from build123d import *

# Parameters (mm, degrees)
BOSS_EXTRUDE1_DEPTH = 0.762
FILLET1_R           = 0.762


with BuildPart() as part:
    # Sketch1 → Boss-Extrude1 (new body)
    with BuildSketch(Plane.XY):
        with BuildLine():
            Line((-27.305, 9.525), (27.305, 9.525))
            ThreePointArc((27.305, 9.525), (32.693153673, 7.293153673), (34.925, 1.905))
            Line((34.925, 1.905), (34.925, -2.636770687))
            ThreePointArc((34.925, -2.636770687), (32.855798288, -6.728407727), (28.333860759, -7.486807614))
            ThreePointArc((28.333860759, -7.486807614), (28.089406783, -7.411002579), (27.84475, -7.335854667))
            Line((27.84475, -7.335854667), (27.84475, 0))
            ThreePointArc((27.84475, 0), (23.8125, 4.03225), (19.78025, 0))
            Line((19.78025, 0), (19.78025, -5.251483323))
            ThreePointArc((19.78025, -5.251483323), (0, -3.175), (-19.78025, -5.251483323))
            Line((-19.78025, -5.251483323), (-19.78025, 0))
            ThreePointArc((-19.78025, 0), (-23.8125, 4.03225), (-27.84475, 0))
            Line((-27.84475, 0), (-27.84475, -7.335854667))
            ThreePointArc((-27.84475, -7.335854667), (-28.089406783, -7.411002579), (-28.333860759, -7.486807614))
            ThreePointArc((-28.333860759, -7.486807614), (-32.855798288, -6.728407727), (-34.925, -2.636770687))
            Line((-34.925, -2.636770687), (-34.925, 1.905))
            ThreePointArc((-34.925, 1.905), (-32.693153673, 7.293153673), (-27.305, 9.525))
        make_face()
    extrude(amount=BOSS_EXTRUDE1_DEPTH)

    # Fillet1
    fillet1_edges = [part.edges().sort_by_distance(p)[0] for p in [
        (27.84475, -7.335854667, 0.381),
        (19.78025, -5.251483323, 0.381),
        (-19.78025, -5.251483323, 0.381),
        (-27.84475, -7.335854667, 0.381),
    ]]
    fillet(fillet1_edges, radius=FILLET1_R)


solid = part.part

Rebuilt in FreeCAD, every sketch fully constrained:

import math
import FreeCAD as App
import Part
import Sketcher

V = App.Vector
Q = App.Units.Quantity


def edges_at(feature, points):
    """Names of the edges that pass closest to the given points."""
    edges = feature.Shape.Edges
    near = lambda p: min(range(len(edges)), key=lambda i: edges[i].distToShape(Part.Vertex(*p))[0])
    return sorted({f"Edge{near(p) + 1}" for p in points})

doc = App.newDocument("Part")
params = doc.addObject("Spreadsheet::Sheet", "Params")
for row, (alias, value) in enumerate([
    ("sketch1_radius", "0.3 in"),
    ("sketch1_radius2", "0.2 in"),
    ("sketch1_radius3", "3.75 in"),
    ("sketch1_width", "2.15 in"),
    ("pad1_length", "0.03 in"),
    ("fillet_radius", "0.03 in"),
], start=1):
    params.set(f"A{row}", alias)
    params.set(f"B{row}", "=" + value)
    params.setAlias(f"B{row}", alias)

body = doc.addObject("PartDesign::Body", "Body")

# Sketch on XY plane
sketch1 = body.newObject("Sketcher::SketchObject", "Sketch")
sketch1.AttachmentSupport = (doc.getObject("XY_Plane"), [""])
sketch1.MapMode = "FlatFace"
sketch1.addGeometry(Part.LineSegment(V(27.305, 9.525, 0), V(-27.305, 9.525, 0)), False)
sketch1.addGeometry(Part.ArcOfCircle(Part.Circle(V(-27.305, 1.905, 0), V(0, 0, 1), 7.62), math.radians(90), math.radians(180)), False)
sketch1.addGeometry(Part.LineSegment(V(-34.925, 1.905, 0), V(-34.925, -2.636771, 0)), False)
sketch1.addGeometry(Part.ArcOfCircle(Part.Circle(V(-29.845, -2.636771, 0), V(0, 0, 1), 5.08), math.radians(180), math.radians(287.30561)), False)
sketch1.addGeometry(Part.ArcOfCircle(Part.Circle(V(0.000013, -98.425042, 0), V(0, 0, 1), 95.250044), math.radians(106.997701), math.radians(107.30561)), False)
sketch1.addGeometry(Part.LineSegment(V(-27.84475, -7.335855, 0), V(-27.84475, 0, 0)), False)
sketch1.addGeometry(Part.ArcOfCircle(Part.Circle(V(-23.8125, 0, 0), V(0, 0, 1), 4.03225), math.radians(0), math.radians(180)), False)
sketch1.addGeometry(Part.LineSegment(V(-19.78025, 0, 0), V(-19.78025, -5.251483, 0)), False)
sketch1.addGeometry(Part.ArcOfCircle(Part.Circle(V(0, -98.425, 0), V(0, 0, 1), 95.25), math.radians(78.014352), math.radians(101.985648)), False)
sketch1.addGeometry(Part.LineSegment(V(19.78025, -5.251483, 0), V(19.78025, 0, 0)), False)
sketch1.addGeometry(Part.ArcOfCircle(Part.Circle(V(23.8125, 0, 0), V(0, 0, 1), 4.03225), math.radians(0), math.radians(180)), False)
sketch1.addGeometry(Part.LineSegment(V(27.84475, 0, 0), V(27.84475, -7.335855, 0)), False)
sketch1.addGeometry(Part.ArcOfCircle(Part.Circle(V(-0.000013, -98.425042, 0), V(0, 0, 1), 95.250044), math.radians(72.69439), math.radians(73.002299)), False)
sketch1.addGeometry(Part.ArcOfCircle(Part.Circle(V(29.845, -2.636771, 0), V(0, 0, 1), 5.08), math.radians(-107.30561), math.radians(0)), False)
sketch1.addGeometry(Part.LineSegment(V(34.925, -2.636771, 0), V(34.925, 1.905, 0)), False)
sketch1.addGeometry(Part.ArcOfCircle(Part.Circle(V(27.305, 1.905, 0), V(0, 0, 1), 7.62), math.radians(0), math.radians(90)), False)
sketch1.addConstraint(Sketcher.Constraint("Tangent", 0, 2, 1, 1))
sketch1.addConstraint(Sketcher.Constraint("Tangent", 1, 2, 2, 1))
sketch1.addConstraint(Sketcher.Constraint("Tangent", 2, 2, 3, 1))
sketch1.addConstraint(Sketcher.Constraint("Tangent", 3, 2, 4, 2))
sketch1.addConstraint(Sketcher.Constraint("Coincident", 4, 1, 5, 1))
sketch1.addConstraint(Sketcher.Constraint("Tangent", 5, 2, 6, 2))
sketch1.addConstraint(Sketcher.Constraint("Tangent", 6, 1, 7, 1))
sketch1.addConstraint(Sketcher.Constraint("Coincident", 7, 2, 8, 2))
sketch1.addConstraint(Sketcher.Constraint("Coincident", 8, 1, 9, 1))
sketch1.addConstraint(Sketcher.Constraint("Tangent", 9, 2, 10, 2))
sketch1.addConstraint(Sketcher.Constraint("Tangent", 10, 1, 11, 1))
sketch1.addConstraint(Sketcher.Constraint("Coincident", 11, 2, 12, 2))
sketch1.addConstraint(Sketcher.Constraint("Tangent", 12, 1, 13, 1))
sketch1.addConstraint(Sketcher.Constraint("Tangent", 13, 2, 14, 1))
sketch1.addConstraint(Sketcher.Constraint("Tangent", 14, 2, 15, 1))
sketch1.addConstraint(Sketcher.Constraint("Tangent", 15, 2, 0, 1))
sketch1.addConstraint(Sketcher.Constraint("Horizontal", 0))
sketch1.addConstraint(Sketcher.Constraint("Vertical", 2))
sketch1.addConstraint(Sketcher.Constraint("Vertical", 5))
sketch1.addConstraint(Sketcher.Constraint("Vertical", 7))
sketch1.addConstraint(Sketcher.Constraint("Vertical", 9))
sketch1.addConstraint(Sketcher.Constraint("Vertical", 11))
sketch1.addConstraint(Sketcher.Constraint("Vertical", 14))
sketch1.addConstraint(Sketcher.Constraint("Equal", 6, 10))
sketch1.addConstraint(Sketcher.Constraint("Equal", 4, 12))
sketch1.addConstraint(Sketcher.Constraint("Equal", 3, 13))
sketch1.addConstraint(Sketcher.Constraint("Equal", 1, 15))
sketch1.addConstraint(Sketcher.Constraint("Symmetric", 6, 3, 10, 3, -1, 1))
sketch1.addConstraint(Sketcher.Constraint("Symmetric", 4, 3, 12, 3, -2))
sketch1.addConstraint(Sketcher.Constraint("PointOnObject", 6, 3, -1))
sketch1.addConstraint(Sketcher.Constraint("PointOnObject", 8, 3, -2))
sketch1.addConstraint(Sketcher.Constraint("Horizontal", 3, 3, 13, 3))
sketch1.addConstraint(Sketcher.Constraint("Radius", 1, Q("0.3 in")))
sketch1.addConstraint(Sketcher.Constraint("Radius", 3, Q("0.2 in")))
sketch1.addConstraint(Sketcher.Constraint("Radius", 8, Q("3.75 in")))
sketch1.addConstraint(Sketcher.Constraint("DistanceX", 0, 2, 0, 1, Q("2.15 in")))
sketch1.addConstraint(Sketcher.Constraint("DistanceY", 8, 3, 1, 3, Q("3.95 in")))
sketch1.addConstraint(Sketcher.Constraint("DistanceY", -1, 1, 1, 3, Q("0.075 in")))
sketch1.addConstraint(Sketcher.Constraint("DistanceX", 6, 3, -1, 1, Q("0.9375 in")))
sketch1.addConstraint(Sketcher.Constraint("Radius", 6, 4.03225))
sketch1.addConstraint(Sketcher.Constraint("Radius", 4, 95.250044))
sketch1.addConstraint(Sketcher.Constraint("DistanceY", 2, 2, 2, 1, 4.541771))
sketch1.addConstraint(Sketcher.Constraint("DistanceY", 5, 1, 5, 2, 7.335855))
sketch1.setExpression("Constraints[32]", "Params.sketch1_radius")
sketch1.setExpression("Constraints[33]", "Params.sketch1_radius2")
sketch1.setExpression("Constraints[34]", "Params.sketch1_radius3")
sketch1.setExpression("Constraints[35]", "Params.sketch1_width")
pad1 = body.newObject("PartDesign::Pad", "Pad")
pad1.Profile = sketch1
pad1.setExpression("Length", "Params.pad1_length")
doc.recompute()

fillet = body.newObject("PartDesign::Fillet", "Fillet")
fillet.Base = (pad1, edges_at(pad1, [
    (27.845, -7.336, 0.381),
    (19.78, -5.251, 0.381),
    (-19.78, -5.251, 0.381),
    (-27.845, -7.336, 0.381),
]))
fillet.setExpression("Radius", "Params.fillet_radius")

doc.recompute()
